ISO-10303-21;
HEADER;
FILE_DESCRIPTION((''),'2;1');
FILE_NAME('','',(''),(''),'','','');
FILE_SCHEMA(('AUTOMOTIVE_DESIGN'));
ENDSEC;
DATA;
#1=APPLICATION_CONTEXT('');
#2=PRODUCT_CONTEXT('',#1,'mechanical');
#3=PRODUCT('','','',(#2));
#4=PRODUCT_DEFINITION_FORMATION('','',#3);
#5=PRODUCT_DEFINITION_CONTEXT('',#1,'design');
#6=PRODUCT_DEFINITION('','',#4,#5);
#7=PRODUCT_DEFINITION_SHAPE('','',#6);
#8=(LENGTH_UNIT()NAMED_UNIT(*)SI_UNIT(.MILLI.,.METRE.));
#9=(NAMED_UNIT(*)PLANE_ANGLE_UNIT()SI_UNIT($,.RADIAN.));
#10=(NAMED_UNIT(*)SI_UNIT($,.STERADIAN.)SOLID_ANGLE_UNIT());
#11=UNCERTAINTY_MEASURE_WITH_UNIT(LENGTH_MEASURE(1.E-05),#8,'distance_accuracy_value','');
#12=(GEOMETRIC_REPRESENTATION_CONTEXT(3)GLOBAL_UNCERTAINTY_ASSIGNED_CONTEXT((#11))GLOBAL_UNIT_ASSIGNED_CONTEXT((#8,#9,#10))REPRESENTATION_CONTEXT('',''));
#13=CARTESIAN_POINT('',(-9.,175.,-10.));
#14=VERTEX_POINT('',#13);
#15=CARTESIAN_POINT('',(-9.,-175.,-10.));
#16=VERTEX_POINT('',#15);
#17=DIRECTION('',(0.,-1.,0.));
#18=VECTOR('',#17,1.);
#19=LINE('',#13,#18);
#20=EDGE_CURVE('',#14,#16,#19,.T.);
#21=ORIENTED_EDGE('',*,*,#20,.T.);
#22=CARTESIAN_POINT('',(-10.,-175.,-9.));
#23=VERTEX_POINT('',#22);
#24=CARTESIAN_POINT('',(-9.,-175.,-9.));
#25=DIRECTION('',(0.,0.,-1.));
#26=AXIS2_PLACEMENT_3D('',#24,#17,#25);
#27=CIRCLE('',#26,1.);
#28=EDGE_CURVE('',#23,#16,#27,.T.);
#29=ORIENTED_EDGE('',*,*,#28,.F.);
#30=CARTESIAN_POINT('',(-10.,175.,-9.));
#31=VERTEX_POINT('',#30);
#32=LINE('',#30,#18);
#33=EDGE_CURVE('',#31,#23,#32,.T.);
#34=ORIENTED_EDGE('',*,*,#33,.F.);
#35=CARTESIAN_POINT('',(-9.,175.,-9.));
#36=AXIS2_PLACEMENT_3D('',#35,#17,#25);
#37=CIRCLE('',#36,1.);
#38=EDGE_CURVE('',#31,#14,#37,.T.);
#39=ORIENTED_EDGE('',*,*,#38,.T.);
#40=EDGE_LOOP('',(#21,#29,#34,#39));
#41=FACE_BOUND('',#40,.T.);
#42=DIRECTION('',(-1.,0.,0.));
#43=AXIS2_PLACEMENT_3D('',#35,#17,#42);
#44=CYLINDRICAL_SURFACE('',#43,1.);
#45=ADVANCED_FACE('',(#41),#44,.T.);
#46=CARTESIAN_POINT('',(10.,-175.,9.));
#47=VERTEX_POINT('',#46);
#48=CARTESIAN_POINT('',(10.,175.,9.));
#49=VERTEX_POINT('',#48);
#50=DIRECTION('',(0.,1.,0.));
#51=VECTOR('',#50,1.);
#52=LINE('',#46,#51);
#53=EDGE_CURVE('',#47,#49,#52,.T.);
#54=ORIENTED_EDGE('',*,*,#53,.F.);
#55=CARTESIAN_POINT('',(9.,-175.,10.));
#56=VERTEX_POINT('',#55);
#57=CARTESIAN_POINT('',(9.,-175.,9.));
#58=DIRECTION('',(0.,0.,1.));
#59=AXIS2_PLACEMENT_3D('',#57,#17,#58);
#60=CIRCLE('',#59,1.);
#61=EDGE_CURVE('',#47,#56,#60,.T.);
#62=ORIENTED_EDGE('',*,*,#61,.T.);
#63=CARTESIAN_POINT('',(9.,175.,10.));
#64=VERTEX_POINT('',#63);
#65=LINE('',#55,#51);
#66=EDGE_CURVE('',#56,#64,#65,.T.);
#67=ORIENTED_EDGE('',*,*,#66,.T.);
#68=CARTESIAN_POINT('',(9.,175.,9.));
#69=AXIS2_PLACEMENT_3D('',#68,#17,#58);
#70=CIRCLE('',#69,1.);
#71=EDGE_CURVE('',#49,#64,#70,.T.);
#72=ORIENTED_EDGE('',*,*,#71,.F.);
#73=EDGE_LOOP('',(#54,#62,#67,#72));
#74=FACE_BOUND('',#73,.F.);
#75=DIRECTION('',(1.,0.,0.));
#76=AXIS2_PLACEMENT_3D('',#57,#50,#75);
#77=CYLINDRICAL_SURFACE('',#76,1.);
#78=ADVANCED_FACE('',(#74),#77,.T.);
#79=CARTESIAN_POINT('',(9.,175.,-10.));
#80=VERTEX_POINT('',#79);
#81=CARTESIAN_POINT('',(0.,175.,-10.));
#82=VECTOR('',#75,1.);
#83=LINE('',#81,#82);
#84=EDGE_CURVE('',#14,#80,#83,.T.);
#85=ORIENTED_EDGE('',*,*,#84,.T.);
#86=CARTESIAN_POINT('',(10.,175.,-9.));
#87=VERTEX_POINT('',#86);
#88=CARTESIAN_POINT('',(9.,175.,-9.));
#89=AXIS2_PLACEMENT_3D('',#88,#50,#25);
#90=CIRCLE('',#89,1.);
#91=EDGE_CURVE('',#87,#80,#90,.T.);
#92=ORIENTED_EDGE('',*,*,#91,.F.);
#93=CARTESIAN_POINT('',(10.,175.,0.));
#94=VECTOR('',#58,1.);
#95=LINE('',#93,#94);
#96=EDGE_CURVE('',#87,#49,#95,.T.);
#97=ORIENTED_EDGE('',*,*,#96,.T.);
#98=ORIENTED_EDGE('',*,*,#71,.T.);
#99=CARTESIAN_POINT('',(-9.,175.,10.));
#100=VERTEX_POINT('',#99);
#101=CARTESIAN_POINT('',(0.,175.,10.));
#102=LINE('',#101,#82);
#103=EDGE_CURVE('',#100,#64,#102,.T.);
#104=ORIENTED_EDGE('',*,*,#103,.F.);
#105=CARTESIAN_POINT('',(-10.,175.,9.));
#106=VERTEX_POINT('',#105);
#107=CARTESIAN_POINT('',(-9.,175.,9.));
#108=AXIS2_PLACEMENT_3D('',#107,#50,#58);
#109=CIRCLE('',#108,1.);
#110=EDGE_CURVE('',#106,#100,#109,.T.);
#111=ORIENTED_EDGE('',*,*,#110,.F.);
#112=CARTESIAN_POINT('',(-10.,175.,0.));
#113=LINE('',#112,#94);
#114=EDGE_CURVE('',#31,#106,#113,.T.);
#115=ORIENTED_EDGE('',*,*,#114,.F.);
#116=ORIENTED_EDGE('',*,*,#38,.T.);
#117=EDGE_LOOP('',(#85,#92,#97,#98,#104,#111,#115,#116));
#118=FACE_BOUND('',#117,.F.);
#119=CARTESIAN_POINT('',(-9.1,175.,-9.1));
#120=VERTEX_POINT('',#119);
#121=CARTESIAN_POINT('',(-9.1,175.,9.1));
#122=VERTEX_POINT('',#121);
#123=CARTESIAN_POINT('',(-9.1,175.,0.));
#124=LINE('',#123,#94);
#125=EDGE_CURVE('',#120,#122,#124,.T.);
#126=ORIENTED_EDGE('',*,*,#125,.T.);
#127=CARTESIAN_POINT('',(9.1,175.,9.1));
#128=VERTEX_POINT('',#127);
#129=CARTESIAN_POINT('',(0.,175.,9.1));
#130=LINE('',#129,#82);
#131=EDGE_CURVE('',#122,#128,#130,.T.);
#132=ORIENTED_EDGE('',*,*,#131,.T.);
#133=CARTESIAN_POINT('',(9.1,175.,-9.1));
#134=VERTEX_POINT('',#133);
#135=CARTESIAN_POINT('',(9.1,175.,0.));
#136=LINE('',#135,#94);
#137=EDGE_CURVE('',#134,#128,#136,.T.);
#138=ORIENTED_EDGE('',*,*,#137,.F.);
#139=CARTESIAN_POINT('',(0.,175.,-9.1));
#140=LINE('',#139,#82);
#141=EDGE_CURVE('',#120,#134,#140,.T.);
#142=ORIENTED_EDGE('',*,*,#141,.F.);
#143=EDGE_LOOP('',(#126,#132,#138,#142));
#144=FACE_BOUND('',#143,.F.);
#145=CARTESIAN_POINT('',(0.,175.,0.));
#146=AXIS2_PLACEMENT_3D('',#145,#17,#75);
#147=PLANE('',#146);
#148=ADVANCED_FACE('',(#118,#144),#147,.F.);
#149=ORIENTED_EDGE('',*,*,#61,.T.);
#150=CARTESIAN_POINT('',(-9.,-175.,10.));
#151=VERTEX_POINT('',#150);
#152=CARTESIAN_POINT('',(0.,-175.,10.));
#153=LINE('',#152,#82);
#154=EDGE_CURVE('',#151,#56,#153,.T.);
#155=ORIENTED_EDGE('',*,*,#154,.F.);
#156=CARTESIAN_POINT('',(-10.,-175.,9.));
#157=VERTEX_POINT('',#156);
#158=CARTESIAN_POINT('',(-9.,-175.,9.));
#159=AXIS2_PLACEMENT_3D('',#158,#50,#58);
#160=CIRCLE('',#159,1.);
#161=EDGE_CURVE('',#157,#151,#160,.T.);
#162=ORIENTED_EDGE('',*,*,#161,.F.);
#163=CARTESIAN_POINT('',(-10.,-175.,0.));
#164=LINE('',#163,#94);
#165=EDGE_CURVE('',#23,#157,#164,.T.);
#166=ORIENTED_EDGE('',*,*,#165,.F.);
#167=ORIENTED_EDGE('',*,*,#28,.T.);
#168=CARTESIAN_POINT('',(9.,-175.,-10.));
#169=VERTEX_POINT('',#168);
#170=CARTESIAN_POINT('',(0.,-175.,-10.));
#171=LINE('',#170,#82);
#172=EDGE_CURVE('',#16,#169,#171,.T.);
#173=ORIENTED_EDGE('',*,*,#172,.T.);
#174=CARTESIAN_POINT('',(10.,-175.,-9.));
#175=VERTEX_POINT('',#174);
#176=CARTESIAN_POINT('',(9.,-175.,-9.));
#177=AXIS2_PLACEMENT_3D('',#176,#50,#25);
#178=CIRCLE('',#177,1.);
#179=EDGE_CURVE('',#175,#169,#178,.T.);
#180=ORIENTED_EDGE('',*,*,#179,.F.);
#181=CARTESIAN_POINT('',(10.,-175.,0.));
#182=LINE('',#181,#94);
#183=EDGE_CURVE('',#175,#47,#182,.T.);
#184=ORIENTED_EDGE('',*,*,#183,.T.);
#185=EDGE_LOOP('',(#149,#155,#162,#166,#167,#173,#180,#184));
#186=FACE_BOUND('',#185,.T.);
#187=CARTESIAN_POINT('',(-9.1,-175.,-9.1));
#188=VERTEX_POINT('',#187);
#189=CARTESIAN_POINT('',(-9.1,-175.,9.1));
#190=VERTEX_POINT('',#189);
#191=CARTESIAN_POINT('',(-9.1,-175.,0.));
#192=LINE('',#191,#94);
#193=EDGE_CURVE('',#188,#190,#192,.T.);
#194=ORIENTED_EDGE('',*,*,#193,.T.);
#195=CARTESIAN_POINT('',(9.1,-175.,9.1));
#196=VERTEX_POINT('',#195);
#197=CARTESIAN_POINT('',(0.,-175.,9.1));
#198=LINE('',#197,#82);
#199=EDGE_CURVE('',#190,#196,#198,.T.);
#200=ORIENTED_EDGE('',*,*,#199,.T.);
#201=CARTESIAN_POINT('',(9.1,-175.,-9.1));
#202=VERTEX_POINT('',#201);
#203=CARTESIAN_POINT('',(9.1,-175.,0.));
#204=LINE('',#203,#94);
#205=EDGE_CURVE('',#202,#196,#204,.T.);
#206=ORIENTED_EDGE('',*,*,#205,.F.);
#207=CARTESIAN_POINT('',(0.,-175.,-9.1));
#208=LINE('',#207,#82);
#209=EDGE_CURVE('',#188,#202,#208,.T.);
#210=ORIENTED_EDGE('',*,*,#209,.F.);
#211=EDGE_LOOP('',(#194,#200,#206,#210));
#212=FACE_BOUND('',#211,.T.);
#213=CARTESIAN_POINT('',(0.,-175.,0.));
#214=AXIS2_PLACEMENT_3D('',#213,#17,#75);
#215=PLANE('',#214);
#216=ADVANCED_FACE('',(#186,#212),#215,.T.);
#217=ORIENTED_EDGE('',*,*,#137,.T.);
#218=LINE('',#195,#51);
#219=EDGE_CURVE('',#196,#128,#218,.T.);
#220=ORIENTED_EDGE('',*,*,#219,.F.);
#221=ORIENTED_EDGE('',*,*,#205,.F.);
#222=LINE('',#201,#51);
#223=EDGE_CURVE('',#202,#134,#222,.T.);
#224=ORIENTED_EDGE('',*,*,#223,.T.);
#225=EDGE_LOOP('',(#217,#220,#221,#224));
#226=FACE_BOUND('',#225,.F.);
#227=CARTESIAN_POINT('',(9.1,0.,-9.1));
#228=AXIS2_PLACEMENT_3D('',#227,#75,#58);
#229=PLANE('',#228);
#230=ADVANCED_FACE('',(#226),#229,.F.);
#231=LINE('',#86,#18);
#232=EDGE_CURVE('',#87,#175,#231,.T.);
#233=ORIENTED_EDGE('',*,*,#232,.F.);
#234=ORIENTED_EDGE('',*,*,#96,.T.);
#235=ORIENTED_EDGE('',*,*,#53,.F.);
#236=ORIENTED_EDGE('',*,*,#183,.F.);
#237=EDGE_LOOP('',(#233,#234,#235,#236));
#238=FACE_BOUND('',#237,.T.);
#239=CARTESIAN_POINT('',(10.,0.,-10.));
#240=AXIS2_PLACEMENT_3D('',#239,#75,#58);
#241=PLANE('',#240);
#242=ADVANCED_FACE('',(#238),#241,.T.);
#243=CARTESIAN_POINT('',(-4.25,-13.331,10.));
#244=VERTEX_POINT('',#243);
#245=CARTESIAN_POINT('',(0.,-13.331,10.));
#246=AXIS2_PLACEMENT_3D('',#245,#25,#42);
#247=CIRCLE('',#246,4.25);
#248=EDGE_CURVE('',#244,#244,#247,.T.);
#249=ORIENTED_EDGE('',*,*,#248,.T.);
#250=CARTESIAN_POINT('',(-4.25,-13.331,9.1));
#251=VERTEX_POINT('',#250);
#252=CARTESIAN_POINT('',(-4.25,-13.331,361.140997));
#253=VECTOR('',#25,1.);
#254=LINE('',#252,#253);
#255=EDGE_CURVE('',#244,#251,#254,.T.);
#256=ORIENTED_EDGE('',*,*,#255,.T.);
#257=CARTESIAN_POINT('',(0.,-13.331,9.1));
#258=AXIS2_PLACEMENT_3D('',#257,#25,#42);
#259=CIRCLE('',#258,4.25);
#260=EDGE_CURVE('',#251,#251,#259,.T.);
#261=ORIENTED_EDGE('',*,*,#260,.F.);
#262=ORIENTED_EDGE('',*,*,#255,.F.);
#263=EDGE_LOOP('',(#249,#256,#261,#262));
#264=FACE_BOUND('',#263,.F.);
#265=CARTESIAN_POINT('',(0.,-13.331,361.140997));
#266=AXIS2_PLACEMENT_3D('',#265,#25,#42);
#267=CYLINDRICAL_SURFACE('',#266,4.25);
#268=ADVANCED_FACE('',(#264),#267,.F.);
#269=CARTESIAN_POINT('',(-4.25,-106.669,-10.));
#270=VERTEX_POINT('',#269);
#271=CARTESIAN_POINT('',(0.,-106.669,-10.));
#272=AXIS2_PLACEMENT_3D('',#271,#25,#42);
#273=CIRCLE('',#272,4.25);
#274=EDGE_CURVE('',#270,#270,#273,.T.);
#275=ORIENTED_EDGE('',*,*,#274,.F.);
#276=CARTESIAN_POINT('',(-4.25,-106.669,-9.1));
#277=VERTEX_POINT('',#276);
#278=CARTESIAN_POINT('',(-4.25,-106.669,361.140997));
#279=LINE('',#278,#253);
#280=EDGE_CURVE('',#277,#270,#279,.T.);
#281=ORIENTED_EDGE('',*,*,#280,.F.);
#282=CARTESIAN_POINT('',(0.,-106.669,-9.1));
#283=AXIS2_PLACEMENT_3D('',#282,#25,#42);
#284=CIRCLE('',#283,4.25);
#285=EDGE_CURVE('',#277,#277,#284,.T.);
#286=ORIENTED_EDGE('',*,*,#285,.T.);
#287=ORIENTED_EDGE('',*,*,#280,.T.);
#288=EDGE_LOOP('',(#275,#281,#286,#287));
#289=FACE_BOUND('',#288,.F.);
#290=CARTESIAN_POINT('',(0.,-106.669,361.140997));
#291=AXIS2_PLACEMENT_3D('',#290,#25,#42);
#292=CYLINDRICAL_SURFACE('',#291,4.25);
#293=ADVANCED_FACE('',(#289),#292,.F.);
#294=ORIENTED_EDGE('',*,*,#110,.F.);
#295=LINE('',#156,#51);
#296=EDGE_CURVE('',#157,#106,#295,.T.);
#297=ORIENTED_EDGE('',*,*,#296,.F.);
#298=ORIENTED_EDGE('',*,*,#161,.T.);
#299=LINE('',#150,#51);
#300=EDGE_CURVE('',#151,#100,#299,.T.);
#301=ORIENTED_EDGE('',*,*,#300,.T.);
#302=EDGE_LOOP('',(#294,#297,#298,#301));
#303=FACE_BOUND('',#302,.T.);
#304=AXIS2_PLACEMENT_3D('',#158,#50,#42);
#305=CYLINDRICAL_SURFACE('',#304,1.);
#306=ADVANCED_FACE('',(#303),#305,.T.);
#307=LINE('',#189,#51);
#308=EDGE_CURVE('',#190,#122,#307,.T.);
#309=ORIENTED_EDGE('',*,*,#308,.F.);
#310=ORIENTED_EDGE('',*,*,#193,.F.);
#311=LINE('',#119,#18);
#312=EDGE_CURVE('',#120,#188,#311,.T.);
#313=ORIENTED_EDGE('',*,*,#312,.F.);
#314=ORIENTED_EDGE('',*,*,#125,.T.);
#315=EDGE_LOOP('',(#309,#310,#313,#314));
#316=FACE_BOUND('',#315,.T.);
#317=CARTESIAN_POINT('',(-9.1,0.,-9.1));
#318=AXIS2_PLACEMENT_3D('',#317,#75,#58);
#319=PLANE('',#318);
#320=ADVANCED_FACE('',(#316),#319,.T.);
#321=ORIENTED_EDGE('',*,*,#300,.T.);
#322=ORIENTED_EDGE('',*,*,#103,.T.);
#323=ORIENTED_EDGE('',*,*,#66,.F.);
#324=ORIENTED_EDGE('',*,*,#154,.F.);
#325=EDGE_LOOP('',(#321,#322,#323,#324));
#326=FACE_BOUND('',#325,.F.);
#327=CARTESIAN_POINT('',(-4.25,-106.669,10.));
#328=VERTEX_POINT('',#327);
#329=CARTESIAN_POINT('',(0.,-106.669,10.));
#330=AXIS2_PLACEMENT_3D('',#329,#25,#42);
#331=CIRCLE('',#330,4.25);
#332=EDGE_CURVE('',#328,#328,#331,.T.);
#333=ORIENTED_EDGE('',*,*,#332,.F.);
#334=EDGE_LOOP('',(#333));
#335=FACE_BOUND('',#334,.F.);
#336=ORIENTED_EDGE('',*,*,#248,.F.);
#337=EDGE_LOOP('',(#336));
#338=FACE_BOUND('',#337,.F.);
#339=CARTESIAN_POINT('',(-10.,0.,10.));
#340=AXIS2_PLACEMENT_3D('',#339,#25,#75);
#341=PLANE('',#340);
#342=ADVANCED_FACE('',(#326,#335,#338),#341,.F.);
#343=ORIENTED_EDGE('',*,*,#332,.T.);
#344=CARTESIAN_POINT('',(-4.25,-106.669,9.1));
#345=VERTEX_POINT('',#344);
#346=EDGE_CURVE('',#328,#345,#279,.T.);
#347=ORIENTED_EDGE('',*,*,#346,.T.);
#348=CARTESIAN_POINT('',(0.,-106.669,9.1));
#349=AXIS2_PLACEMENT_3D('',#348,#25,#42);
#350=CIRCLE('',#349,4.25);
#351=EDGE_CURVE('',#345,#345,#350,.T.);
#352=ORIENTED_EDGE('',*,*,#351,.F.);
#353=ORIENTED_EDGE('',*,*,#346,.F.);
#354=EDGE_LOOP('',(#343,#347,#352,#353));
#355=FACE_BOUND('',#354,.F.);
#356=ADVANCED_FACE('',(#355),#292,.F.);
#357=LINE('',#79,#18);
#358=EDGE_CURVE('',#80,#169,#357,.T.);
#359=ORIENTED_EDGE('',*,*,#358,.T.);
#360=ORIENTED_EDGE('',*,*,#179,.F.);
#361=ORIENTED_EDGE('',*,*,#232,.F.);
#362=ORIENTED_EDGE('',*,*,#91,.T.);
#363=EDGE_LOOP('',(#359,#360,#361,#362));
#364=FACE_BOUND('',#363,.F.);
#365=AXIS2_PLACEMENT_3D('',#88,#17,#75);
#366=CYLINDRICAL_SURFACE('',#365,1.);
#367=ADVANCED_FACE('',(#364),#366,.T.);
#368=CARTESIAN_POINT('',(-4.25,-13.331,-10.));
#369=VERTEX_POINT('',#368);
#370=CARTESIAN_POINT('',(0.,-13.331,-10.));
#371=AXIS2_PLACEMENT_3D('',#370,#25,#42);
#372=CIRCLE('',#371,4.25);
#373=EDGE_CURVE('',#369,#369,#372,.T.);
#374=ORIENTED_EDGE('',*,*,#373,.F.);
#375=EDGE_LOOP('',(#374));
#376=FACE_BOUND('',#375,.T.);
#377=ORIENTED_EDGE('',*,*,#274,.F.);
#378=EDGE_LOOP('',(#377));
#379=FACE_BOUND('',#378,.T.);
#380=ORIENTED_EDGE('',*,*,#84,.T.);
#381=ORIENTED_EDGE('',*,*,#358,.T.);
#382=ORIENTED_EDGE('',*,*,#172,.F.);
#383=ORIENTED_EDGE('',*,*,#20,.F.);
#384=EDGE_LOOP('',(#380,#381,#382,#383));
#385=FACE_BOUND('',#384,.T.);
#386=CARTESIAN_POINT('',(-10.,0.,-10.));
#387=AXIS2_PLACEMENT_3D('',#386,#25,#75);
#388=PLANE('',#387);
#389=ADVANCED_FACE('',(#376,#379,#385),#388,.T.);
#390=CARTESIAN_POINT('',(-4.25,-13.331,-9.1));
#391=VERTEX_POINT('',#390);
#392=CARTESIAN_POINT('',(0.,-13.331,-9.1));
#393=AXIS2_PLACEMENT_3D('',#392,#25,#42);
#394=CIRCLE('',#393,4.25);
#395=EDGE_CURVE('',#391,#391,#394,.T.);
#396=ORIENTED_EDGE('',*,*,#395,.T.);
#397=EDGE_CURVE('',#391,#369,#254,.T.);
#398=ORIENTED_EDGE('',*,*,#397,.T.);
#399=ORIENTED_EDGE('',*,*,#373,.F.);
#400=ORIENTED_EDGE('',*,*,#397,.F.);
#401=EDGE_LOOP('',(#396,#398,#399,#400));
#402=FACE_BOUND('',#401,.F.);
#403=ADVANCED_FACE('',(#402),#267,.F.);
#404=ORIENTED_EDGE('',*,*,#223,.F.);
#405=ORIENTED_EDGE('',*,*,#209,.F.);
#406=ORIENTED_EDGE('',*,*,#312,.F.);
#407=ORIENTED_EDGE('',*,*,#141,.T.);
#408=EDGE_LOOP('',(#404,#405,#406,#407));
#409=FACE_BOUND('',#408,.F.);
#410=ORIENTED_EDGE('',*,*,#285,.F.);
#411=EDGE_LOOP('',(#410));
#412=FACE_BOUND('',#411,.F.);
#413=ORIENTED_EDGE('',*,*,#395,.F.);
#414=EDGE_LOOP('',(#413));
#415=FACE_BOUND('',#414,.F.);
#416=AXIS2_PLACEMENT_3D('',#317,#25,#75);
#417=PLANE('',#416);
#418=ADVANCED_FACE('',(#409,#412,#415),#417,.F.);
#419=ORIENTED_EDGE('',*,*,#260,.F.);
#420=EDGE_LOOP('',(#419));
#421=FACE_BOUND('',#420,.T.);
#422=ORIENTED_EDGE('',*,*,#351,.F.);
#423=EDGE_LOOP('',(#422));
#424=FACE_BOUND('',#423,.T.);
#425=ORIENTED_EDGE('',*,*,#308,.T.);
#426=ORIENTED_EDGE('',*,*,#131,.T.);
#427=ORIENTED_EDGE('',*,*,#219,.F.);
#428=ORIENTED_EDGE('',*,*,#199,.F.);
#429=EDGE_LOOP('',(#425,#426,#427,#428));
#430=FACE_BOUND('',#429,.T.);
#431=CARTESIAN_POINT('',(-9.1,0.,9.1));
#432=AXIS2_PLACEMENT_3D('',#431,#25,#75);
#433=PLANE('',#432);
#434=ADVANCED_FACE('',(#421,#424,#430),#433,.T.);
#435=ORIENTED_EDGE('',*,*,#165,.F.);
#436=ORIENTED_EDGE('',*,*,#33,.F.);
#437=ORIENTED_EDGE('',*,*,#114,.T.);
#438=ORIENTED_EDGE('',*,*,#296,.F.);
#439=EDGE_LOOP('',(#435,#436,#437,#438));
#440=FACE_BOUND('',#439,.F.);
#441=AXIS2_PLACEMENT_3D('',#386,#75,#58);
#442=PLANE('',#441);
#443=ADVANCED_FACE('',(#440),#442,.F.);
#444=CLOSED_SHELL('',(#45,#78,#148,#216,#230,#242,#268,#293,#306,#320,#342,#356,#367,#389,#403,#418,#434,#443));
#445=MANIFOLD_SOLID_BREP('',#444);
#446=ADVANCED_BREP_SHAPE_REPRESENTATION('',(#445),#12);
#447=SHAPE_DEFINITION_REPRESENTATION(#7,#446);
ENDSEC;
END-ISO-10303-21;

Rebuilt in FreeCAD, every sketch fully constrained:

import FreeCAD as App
import Part
import Sketcher

V = App.Vector
Q = App.Units.Quantity


def edges_at(feature, points):
    """Names of the edges that pass closest to the given points."""
    edges = feature.Shape.Edges
    near = lambda p: min(range(len(edges)), key=lambda i: edges[i].distToShape(Part.Vertex(*p))[0])
    return sorted({f"Edge{near(p) + 1}" for p in points})

doc = App.newDocument("Part")
params = doc.addObject("Spreadsheet::Sheet", "Params")
for row, (alias, value) in enumerate([
    ("sketch1_width", "20 mm"),
    ("sketch1_width2", "18.2 mm"),
    ("pad1_length", "350 mm"),
    ("fillet_radius", "1 mm"),
    ("sketch2_diameter", "8.5 mm"),
    ("hole_diameter", "8.5 mm"),
], start=1):
    params.set(f"A{row}", alias)
    params.set(f"B{row}", "=" + value)
    params.setAlias(f"B{row}", alias)

body = doc.addObject("PartDesign::Body", "Body")

sketch1 = body.newObject("Sketcher::SketchObject", "Sketch")
sketch1.AttachmentSupport = (doc.getObject("XZ_Plane"), [""])
sketch1.MapMode = "FlatFace"
sketch1.addGeometry([
    Part.LineSegment(V(-10, 10, 0), V(-10, -10, 0)),
    Part.LineSegment(V(-10, -10, 0), V(10, -10, 0)),
    Part.LineSegment(V(10, -10, 0), V(10, 10, 0)),
    Part.LineSegment(V(10, 10, 0), V(-10, 10, 0)),
    Part.LineSegment(V(9.1, -9.1, 0), V(-9.1, -9.1, 0)),
    Part.LineSegment(V(-9.1, -9.1, 0), V(-9.1, 9.1, 0)),
    Part.LineSegment(V(-9.1, 9.1, 0), V(9.1, 9.1, 0)),
    Part.LineSegment(V(9.1, 9.1, 0), V(9.1, -9.1, 0)),
], False)
sketch1.addConstraint([
    Sketcher.Constraint("Coincident", 0, 2, 1, 1),
    Sketcher.Constraint("Coincident", 1, 2, 2, 1),
    Sketcher.Constraint("Coincident", 2, 2, 3, 1),
    Sketcher.Constraint("Coincident", 3, 2, 0, 1),
    Sketcher.Constraint("Coincident", 4, 2, 5, 1),
    Sketcher.Constraint("Coincident", 5, 2, 6, 1),
    Sketcher.Constraint("Coincident", 6, 2, 7, 1),
    Sketcher.Constraint("Coincident", 7, 2, 4, 1),
    Sketcher.Constraint("Vertical", 0),
    Sketcher.Constraint("Horizontal", 1),
    Sketcher.Constraint("Vertical", 2),
    Sketcher.Constraint("Horizontal", 3),
    Sketcher.Constraint("Horizontal", 4),
    Sketcher.Constraint("Vertical", 5),
    Sketcher.Constraint("Horizontal", 6),
    Sketcher.Constraint("Vertical", 7),
    Sketcher.Constraint("Symmetric", 0, 2, 2, 2, -1, 1),
    Sketcher.Constraint("Symmetric", 4, 2, 6, 2, -1, 1),
    Sketcher.Constraint("Equal", 3, 0),
    Sketcher.Constraint("Equal", 6, 5),
    Sketcher.Constraint("DistanceX", 1, 1, 1, 2, Q("20 mm")),
    Sketcher.Constraint("DistanceX", 4, 2, 4, 1, Q("18.2 mm")),
])
sketch1.setExpression("Constraints[20]", "Params.sketch1_width")
sketch1.setExpression("Constraints[21]", "Params.sketch1_width2")
pad1 = body.newObject("PartDesign::Pad", "Pad")
pad1.Profile = sketch1
pad1.setExpression("Length", "Params.pad1_length")
pad1.Midplane = True
doc.recompute()

fillet = body.newObject("PartDesign::Fillet", "Fillet")
fillet.Base = (pad1, edges_at(pad1, [
    (10, 0, 10),
    (-10, 0, 10),
    (10, 0, -10),
    (-10, 0, -10),
]))
fillet.setExpression("Radius", "Params.fillet_radius")

sketch2 = body.newObject("Sketcher::SketchObject", "Sketch001")
sketch2.AttachmentSupport = (doc.getObject("XY_Plane"), [""])
sketch2.MapMode = "FlatFace"
sketch2.AttachmentOffset = App.Placement(V(0, 0, 10), App.Rotation())
sketch2.addGeometry([
    Part.Circle(V(0, -13.331, 0), V(0, 0, 1), 4.25),
    Part.Circle(V(0, -106.669, 0), V(0, 0, 1), 4.25),
], False)
sketch2.addConstraint([
    Sketcher.Constraint("Equal", 0, 1),
    Sketcher.Constraint("PointOnObject", 0, 3, -2),
    Sketcher.Constraint("PointOnObject", 1, 3, -2),
    Sketcher.Constraint("Diameter", 0, Q("8.5 mm")),
    Sketcher.Constraint("DistanceY", 0, 3, -1, 1, Q("13.331 mm")),
    Sketcher.Constraint("DistanceY", 1, 3, -1, 1, Q("106.669 mm")),
])
sketch2.setExpression("Constraints[3]", "Params.sketch2_diameter")
doc.recompute()
hole = body.newObject("PartDesign::Hole", "Hole")
hole.Profile = sketch2
hole.ThreadType = "None"
hole.setExpression("Diameter", "Params.hole_diameter")
hole.DepthType = "ThroughAll"

doc.recompute()
